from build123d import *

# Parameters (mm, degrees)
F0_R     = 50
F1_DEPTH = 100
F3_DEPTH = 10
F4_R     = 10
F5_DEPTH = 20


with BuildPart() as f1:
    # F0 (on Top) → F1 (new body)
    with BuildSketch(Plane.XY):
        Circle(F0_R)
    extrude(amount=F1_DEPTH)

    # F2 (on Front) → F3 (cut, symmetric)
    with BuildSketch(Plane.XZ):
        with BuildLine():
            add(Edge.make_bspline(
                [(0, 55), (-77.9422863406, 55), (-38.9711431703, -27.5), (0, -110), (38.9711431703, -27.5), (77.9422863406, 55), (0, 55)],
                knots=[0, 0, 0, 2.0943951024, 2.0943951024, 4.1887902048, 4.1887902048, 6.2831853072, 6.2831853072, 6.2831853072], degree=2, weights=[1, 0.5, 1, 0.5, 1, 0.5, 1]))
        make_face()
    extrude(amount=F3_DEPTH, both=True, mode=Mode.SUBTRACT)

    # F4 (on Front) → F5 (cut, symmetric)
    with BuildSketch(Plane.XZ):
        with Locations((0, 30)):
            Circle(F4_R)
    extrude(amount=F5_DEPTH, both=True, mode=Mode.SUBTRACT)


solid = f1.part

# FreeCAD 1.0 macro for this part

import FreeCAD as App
import Part
import Sketcher

V = App.Vector

doc = App.newDocument("Part")
body = doc.addObject("PartDesign::Body", "Body")

sketch1 = body.newObject("Sketcher::SketchObject", "Sketch")
sketch1.AttachmentSupport = (doc.getObject("XY_Plane"), [""])
sketch1.MapMode = "FlatFace"
sketch1.addGeometry(Part.Circle(V(0, 0, 0), V(0, 0, 1), 50), False)
sketch1.addConstraint([
    Sketcher.Constraint("Coincident", 0, 3, -1, 1),
    Sketcher.Constraint("Diameter", 0, 100.0),
])
pad1 = body.newObject("PartDesign::Pad", "Pad")
pad1.Profile = sketch1
pad1.Length = 100

sketch2 = body.newObject("Sketcher::SketchObject", "Sketch001")
sketch2.AttachmentSupport = (doc.getObject("XZ_Plane"), [""])
sketch2.MapMode = "FlatFace"
sketch2.addGeometry(Part.BSplineCurve([V(0, 55, 0), V(-77.942286, 55, 0), V(-38.971143, -27.5, 0), V(0, -110, 0), V(38.971143, -27.5, 0), V(77.942286, 55, 0), V(0, 55, 0)], [3, 2, 2, 3], [0, 2.094395102, 4.188790205, 6.283185307], False, 2, [1, 0.5, 1, 0.5, 1, 0.5, 1], False), False)
sketch2.addConstraint(Sketcher.Constraint("Block", 0))
pocket1 = body.newObject("PartDesign::Pocket", "Pocket")
pocket1.Profile = sketch2
pocket1.Length = 20
pocket1.Midplane = True

sketch3 = body.newObject("Sketcher::SketchObject", "Sketch002")
sketch3.AttachmentSupport = (doc.getObject("XZ_Plane"), [""])
sketch3.MapMode = "FlatFace"
sketch3.addGeometry(Part.Circle(V(0, 30, 0), V(0, 0, 1), 10), False)
sketch3.addConstraint([
    Sketcher.Constraint("PointOnObject", 0, 3, -2),
    Sketcher.Constraint("Diameter", 0, 20.0),
    Sketcher.Constraint("DistanceY", -1, 1, 0, 3, 30.0),
])
pocket2 = body.newObject("PartDesign::Pocket", "Pocket001")
pocket2.Profile = sketch3
pocket2.Length = 40
pocket2.Midplane = True

doc.recompute()
